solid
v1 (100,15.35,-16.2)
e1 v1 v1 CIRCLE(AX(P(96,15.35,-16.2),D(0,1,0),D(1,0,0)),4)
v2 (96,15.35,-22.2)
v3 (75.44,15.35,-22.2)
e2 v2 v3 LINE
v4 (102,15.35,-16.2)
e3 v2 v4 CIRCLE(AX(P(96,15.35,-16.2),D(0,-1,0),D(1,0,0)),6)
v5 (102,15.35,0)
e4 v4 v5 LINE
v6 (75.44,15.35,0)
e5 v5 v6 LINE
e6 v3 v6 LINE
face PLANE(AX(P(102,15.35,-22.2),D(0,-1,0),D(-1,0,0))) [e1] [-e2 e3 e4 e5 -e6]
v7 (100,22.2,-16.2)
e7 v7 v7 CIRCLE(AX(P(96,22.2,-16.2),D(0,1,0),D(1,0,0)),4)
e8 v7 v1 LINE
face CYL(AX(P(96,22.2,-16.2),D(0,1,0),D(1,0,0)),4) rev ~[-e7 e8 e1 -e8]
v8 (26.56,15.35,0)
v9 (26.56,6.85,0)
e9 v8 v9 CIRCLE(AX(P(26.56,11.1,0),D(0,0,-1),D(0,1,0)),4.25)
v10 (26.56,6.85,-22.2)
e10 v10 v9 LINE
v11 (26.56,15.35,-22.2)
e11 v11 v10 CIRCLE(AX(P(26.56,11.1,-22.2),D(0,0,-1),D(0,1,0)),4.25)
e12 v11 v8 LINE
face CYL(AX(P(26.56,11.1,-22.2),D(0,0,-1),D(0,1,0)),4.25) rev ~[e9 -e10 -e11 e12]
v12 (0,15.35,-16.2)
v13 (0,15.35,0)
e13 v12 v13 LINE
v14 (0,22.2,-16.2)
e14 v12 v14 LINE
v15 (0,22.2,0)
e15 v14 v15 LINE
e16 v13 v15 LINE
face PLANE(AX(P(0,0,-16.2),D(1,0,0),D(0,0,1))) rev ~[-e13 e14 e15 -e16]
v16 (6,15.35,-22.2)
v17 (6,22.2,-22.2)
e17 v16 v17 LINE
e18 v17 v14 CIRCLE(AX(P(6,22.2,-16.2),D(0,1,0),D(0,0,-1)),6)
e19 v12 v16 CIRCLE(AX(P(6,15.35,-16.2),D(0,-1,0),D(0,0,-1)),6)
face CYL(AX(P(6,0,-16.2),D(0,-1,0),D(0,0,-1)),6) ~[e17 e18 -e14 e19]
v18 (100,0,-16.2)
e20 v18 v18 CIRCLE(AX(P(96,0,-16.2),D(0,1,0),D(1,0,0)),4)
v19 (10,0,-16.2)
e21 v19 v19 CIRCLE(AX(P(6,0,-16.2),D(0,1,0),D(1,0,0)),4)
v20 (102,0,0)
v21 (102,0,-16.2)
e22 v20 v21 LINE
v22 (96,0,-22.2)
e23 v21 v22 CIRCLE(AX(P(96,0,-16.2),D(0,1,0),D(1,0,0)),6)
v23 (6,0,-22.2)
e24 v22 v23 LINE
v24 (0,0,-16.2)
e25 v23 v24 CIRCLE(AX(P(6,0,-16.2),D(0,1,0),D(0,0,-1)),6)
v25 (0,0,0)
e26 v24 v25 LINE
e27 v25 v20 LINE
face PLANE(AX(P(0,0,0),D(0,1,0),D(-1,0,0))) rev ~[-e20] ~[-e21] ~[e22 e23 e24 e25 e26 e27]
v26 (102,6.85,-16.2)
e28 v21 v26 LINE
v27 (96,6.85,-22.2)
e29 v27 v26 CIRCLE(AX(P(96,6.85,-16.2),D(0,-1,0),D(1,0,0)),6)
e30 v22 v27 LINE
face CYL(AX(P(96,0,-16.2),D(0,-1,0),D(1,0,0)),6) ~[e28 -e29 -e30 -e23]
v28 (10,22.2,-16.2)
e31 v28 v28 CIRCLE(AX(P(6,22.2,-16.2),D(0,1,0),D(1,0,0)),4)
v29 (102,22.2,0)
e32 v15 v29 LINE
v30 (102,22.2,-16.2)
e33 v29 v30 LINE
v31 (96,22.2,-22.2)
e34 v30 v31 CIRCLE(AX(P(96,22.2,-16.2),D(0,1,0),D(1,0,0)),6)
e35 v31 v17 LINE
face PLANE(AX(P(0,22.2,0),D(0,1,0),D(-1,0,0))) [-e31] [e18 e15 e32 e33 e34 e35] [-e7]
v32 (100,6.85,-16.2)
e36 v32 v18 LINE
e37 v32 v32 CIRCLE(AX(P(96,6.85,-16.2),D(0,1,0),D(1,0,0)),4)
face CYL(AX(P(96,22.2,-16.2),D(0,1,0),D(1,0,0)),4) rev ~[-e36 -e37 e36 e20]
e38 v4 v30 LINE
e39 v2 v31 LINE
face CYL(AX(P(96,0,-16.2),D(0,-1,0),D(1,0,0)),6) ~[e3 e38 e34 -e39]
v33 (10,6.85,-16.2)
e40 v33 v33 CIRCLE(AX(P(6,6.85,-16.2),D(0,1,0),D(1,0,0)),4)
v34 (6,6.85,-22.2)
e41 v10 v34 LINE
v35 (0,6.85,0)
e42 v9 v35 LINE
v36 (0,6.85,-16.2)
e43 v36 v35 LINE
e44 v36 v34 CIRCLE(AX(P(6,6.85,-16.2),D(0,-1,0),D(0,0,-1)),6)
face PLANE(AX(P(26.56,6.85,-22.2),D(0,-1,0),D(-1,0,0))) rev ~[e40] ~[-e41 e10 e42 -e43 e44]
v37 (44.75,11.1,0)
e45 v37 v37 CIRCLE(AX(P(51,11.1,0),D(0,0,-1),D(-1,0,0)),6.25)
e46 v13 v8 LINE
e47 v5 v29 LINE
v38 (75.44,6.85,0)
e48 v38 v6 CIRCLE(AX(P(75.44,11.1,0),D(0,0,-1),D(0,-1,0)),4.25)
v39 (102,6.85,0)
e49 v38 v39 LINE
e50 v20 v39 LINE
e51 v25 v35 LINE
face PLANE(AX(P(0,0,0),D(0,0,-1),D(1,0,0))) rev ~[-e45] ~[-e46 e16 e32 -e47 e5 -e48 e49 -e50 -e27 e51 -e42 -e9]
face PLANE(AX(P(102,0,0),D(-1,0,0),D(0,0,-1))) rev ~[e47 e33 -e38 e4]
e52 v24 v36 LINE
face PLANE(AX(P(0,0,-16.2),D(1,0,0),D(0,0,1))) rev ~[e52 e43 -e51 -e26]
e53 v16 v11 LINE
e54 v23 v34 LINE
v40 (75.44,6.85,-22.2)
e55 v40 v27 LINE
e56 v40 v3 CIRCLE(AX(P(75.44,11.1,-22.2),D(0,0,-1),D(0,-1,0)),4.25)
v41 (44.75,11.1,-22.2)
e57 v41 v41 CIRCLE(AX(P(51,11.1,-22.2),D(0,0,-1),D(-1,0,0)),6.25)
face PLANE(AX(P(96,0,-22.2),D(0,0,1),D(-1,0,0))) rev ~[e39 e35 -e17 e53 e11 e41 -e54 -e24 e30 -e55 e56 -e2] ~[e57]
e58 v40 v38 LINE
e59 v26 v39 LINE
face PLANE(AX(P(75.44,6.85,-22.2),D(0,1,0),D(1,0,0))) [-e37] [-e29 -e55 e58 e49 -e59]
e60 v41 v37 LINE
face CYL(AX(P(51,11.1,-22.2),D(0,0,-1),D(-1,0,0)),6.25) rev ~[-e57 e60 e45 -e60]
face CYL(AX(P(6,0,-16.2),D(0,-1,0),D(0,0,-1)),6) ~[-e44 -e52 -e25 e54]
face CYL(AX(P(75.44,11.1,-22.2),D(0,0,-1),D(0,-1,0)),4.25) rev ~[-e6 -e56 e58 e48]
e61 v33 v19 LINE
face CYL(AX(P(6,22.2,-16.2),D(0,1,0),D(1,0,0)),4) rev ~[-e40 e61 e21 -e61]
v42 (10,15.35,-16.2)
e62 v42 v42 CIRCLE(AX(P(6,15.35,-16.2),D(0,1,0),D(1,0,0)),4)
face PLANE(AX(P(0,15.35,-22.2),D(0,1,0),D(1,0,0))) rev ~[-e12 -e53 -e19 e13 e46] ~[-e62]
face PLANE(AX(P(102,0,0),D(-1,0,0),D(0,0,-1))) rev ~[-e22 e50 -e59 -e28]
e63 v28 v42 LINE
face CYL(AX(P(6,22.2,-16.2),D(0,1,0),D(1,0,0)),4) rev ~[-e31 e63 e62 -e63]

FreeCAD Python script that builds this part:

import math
import FreeCAD as App
import Part
import Sketcher

V = App.Vector

doc = App.newDocument("Part")
params = doc.addObject("Spreadsheet::Sheet", "Params")
for row, (alias, value) in enumerate([
    ("sketch1_radius", "6 mm"),
    ("sketch1_width", "102 mm"),
    ("pad1_length", "22.2 mm"),
    ("sketch2_diameter", "8 mm"),
    ("sketch3_diameter", "12.5 mm"),
    ("sketch3_radius", "4.25 mm"),
    ("sketch3_width", "26.56 mm"),
], start=1):
    params.set(f"A{row}", alias)
    params.set(f"B{row}", "=" + value)
    params.setAlias(f"B{row}", alias)

body = doc.addObject("PartDesign::Body", "Body")

sketch1 = body.newObject("Sketcher::SketchObject", "Sketch")
sketch1.AttachmentSupport = (doc.getObject("XZ_Plane"), [""])
sketch1.MapMode = "FlatFace"
sketch1.addGeometry(Part.LineSegment(V(0, -16, 0), V(0, 0, 0)), False)
sketch1.addGeometry(Part.LineSegment(V(0, 0, 0), V(102, 0, 0)), False)
sketch1.addGeometry(Part.LineSegment(V(102, 0, 0), V(102, -16, 0)), False)
sketch1.addGeometry(Part.ArcOfCircle(Part.Circle(V(96, -16, 0), V(0, 0, 1), 6), math.radians(-90), math.radians(0)), False)
sketch1.addGeometry(Part.LineSegment(V(96, -22, 0), V(6, -22, 0)), False)
sketch1.addGeometry(Part.ArcOfCircle(Part.Circle(V(6, -16, 0), V(0, 0, 1), 6), math.radians(180), math.radians(270)), False)
sketch1.addConstraint(Sketcher.Constraint("Coincident", 0, 2, 1, 1))
sketch1.addConstraint(Sketcher.Constraint("Coincident", 1, 2, 2, 1))
sketch1.addConstraint(Sketcher.Constraint("Tangent", 2, 2, 3, 2))
sketch1.addConstraint(Sketcher.Constraint("Tangent", 3, 1, 4, 1))
sketch1.addConstraint(Sketcher.Constraint("Tangent", 4, 2, 5, 2))
sketch1.addConstraint(Sketcher.Constraint("Tangent", 5, 1, 0, 1))
sketch1.addConstraint(Sketcher.Constraint("Vertical", 0))
sketch1.addConstraint(Sketcher.Constraint("Horizontal", 1))
sketch1.addConstraint(Sketcher.Constraint("Vertical", 2))
sketch1.addConstraint(Sketcher.Constraint("Horizontal", 4))
sketch1.addConstraint(Sketcher.Constraint("Coincident", 0, 2, -1, 1))
sketch1.addConstraint(Sketcher.Constraint("Equal", 3, 5))
sketch1.addConstraint(Sketcher.Constraint("Radius", 3, 6.0))
sketch1.addConstraint(Sketcher.Constraint("DistanceX", 1, 1, 1, 2, 102.0))
sketch1.addConstraint(Sketcher.Constraint("DistanceY", 3, 1, -1, 1, 22.2))
sketch1.setExpression("Constraints[12]", "Params.sketch1_radius")
sketch1.setExpression("Constraints[13]", "Params.sketch1_width")
pad1 = body.newObject("PartDesign::Pad", "Pad")
pad1.Profile = sketch1
pad1.setExpression("Length", "Params.pad1_length")
pad1.Reversed = True

sketch2 = body.newObject("Sketcher::SketchObject", "Sketch001")
sketch2.AttachmentSupport = (doc.getObject("XZ_Plane"), [""])
sketch2.MapMode = "FlatFace"
sketch2.AttachmentOffset = App.Placement(V(0, 0, -22.2), App.Rotation())
sketch2.addGeometry(Part.Circle(V(6, -16.2, 0), V(0, 0, 1), 4), False)
sketch2.addGeometry(Part.Circle(V(96, -16.2, 0), V(0, 0, 1), 4), False)
sketch2.addConstraint(Sketcher.Constraint("Equal", 0, 1))
sketch2.addConstraint(Sketcher.Constraint("Horizontal", 0, 3, 1, 3))
sketch2.addConstraint(Sketcher.Constraint("Diameter", 0, 8.0))
sketch2.addConstraint(Sketcher.Constraint("DistanceX", -1, 1, 0, 3, 6.0))
sketch2.addConstraint(Sketcher.Constraint("DistanceX", -1, 1, 1, 3, 96.0))
sketch2.addConstraint(Sketcher.Constraint("DistanceY", 0, 3, -1, 1, 16.2))
sketch2.setExpression("Constraints[2]", "Params.sketch2_diameter")
pocket1 = body.newObject("PartDesign::Pocket", "Pocket")
pocket1.Profile = sketch2
pocket1.Type = "ThroughAll"
pocket1.Reversed = True

sketch3 = body.newObject("Sketcher::SketchObject", "Sketch002")
sketch3.AttachmentSupport = (doc.getObject("XY_Plane"), [""])
sketch3.MapMode = "FlatFace"
sketch3.AttachmentOffset = App.Placement(V(0, 0, -22.2), App.Rotation())
sketch3.addGeometry(Part.LineSegment(V(102, 15.3, 0), V(102, 6.8, 0)), False)
sketch3.addGeometry(Part.LineSegment(V(102, 6.8, 0), V(75.4, 6.8, 0)), False)
sketch3.addGeometry(Part.ArcOfCircle(Part.Circle(V(75.4, 11.1, 0), V(0, 0, 1), 4.2), math.radians(90), math.radians(270)), False)
sketch3.addGeometry(Part.LineSegment(V(75.4, 15.3, 0), V(102, 15.3, 0)), False)
sketch3.addGeometry(Part.LineSegment(V(26.6, 6.8, 0), V(0, 6.8, 0)), False)
sketch3.addGeometry(Part.LineSegment(V(0, 6.8, 0), V(0, 15.3, 0)), False)
sketch3.addGeometry(Part.LineSegment(V(0, 15.3, 0), V(26.6, 15.3, 0)), False)
sketch3.addGeometry(Part.ArcOfCircle(Part.Circle(V(26.6, 11.1, 0), V(0, 0, 1), 4.2), math.radians(-90), math.radians(90)), False)
sketch3.addGeometry(Part.Circle(V(51, 11.1, 0), V(0, 0, 1), 6.2), False)
sketch3.addConstraint(Sketcher.Constraint("Coincident", 0, 2, 1, 1))
sketch3.addConstraint(Sketcher.Constraint("Tangent", 1, 2, 2, 2))
sketch3.addConstraint(Sketcher.Constraint("Tangent", 2, 1, 3, 1))
sketch3.addConstraint(Sketcher.Constraint("Coincident", 3, 2, 0, 1))
sketch3.addConstraint(Sketcher.Constraint("Coincident", 4, 2, 5, 1))
sketch3.addConstraint(Sketcher.Constraint("Coincident", 5, 2, 6, 1))
sketch3.addConstraint(Sketcher.Constraint("Tangent", 6, 2, 7, 2))
sketch3.addConstraint(Sketcher.Constraint("Tangent", 7, 1, 4, 1))
sketch3.addConstraint(Sketcher.Constraint("Vertical", 0))
sketch3.addConstraint(Sketcher.Constraint("Horizontal", 1))
sketch3.addConstraint(Sketcher.Constraint("Horizontal", 3))
sketch3.addConstraint(Sketcher.Constraint("Horizontal", 4))
sketch3.addConstraint(Sketcher.Constraint("Vertical", 5))
sketch3.addConstraint(Sketcher.Constraint("Horizontal", 6))
sketch3.addConstraint(Sketcher.Constraint("Equal", 2, 7))
sketch3.addConstraint(Sketcher.Constraint("PointOnObject", 4, 2, -2))
sketch3.addConstraint(Sketcher.Constraint("Horizontal", 2, 3, 7, 3))
sketch3.addConstraint(Sketcher.Constraint("Horizontal", 7, 3, 8, 3))
sketch3.addConstraint(Sketcher.Constraint("Equal", 3, 4))
sketch3.addConstraint(Sketcher.Constraint("Diameter", 8, 12.5))
sketch3.addConstraint(Sketcher.Constraint("Radius", 2, 4.25))
sketch3.addConstraint(Sketcher.Constraint("DistanceX", -1, 1, 8, 3, 51.0))
sketch3.addConstraint(Sketcher.Constraint("DistanceX", 8, 3, 0, 2, 51.0))
sketch3.addConstraint(Sketcher.Constraint("DistanceX", 1, 2, 1, 1, 26.56))
sketch3.addConstraint(Sketcher.Constraint("DistanceY", -1, 1, 2, 3, 11.1))
sketch3.setExpression("Constraints[19]", "Params.sketch3_diameter")
sketch3.setExpression("Constraints[20]", "Params.sketch3_radius")
sketch3.setExpression("Constraints[23]", "Params.sketch3_width")
pocket2 = body.newObject("PartDesign::Pocket", "Pocket001")
pocket2.Profile = sketch3
pocket2.Type = "ThroughAll"
pocket2.Reversed = True

doc.recompute()
